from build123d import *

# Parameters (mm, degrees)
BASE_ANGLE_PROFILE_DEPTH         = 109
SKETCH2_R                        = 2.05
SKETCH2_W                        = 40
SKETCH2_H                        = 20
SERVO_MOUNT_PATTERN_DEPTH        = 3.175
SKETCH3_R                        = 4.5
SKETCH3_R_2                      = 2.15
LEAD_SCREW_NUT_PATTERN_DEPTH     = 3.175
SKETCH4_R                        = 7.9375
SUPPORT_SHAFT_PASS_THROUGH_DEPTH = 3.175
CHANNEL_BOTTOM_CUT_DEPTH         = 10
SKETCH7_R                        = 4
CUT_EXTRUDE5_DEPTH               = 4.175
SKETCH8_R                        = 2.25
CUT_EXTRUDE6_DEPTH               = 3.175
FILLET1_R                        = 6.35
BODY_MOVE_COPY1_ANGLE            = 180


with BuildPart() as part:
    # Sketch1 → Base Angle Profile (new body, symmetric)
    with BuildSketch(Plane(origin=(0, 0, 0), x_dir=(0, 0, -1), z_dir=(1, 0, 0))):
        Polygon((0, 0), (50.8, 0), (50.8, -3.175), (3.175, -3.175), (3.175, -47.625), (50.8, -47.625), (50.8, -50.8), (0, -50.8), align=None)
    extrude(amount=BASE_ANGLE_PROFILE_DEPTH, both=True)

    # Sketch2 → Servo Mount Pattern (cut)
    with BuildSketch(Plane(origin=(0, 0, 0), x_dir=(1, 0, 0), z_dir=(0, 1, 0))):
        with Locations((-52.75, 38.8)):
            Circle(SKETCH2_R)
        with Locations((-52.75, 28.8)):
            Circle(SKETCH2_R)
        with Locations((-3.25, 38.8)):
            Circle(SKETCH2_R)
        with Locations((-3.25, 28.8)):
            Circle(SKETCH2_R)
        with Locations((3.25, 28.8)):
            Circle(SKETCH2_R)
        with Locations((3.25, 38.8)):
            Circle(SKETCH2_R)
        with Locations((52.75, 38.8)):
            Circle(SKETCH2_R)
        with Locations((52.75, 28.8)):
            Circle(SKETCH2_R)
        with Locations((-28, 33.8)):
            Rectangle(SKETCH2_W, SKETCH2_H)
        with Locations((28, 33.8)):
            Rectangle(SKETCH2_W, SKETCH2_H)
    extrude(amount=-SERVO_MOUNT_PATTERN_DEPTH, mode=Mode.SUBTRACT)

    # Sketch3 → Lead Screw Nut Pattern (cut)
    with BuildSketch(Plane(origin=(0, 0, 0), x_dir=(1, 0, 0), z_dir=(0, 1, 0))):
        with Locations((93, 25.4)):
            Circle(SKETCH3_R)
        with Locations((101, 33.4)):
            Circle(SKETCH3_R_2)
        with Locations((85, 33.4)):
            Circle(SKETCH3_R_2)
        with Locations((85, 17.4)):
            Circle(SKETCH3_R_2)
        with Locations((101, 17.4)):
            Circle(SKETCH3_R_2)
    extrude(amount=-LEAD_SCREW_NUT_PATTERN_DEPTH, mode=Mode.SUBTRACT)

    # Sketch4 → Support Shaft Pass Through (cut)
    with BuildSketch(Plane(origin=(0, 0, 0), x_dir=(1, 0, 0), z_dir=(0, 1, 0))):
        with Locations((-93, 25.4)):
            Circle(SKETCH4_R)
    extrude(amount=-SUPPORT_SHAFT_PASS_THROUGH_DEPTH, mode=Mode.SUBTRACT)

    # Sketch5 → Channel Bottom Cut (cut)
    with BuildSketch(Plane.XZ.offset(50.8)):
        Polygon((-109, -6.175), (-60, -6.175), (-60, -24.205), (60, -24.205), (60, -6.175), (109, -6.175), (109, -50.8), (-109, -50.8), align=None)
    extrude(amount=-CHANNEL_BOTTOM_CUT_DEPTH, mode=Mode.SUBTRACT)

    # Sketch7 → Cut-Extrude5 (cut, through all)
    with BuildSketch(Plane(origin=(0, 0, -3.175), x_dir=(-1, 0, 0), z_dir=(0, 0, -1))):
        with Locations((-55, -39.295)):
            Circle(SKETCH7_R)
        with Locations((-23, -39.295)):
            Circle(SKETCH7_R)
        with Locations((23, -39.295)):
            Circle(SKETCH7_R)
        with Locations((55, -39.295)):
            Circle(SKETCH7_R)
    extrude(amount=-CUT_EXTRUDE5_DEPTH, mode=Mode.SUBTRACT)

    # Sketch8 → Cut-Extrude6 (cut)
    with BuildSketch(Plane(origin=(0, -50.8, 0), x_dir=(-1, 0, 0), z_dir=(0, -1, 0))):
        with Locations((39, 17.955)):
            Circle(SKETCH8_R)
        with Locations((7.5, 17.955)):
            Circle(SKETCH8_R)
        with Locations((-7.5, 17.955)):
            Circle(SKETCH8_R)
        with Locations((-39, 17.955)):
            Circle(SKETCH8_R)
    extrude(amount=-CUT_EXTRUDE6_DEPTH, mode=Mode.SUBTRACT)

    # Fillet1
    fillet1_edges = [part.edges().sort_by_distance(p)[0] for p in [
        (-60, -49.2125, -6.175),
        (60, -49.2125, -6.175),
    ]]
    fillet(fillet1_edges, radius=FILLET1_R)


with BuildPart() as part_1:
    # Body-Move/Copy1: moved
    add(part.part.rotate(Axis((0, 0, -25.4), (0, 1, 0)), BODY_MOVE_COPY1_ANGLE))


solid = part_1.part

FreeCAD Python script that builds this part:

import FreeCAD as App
import Part
import Sketcher
Q = App.Units.Quantity


def edges_at(feature, points):
    """Names of the edges that pass closest to the given points."""
    edges = feature.Shape.Edges
    near = lambda p: min(range(len(edges)), key=lambda i: edges[i].distToShape(Part.Vertex(*p))[0])
    return sorted({f"Edge{near(p) + 1}" for p in points})

doc = App.newDocument("Part")
body = doc.addObject("PartDesign::Body", "Body")

sketch1 = body.newObject("Sketcher::SketchObject", "Sketch")
sketch1.AttachmentSupport = (doc.getObject("YZ_Plane"), [""])
sketch1.MapMode = "FlatFace"
sketch1.addGeometry(Part.LineSegment(App.Vector(0, -50.8, 0), App.Vector(0, 0, 0)), False)
sketch1.addGeometry(Part.LineSegment(App.Vector(0, 0, 0), App.Vector(-50.8, 0, 0)), False)
sketch1.addGeometry(Part.LineSegment(App.Vector(-50.8, 0, 0), App.Vector(-50.8, -50.8, 0)), False)
sketch1.addGeometry(Part.LineSegment(App.Vector(-50.8, -50.8, 0), App.Vector(-47.6, -50.8, 0)), False)
sketch1.addGeometry(Part.LineSegment(App.Vector(-47.6, -50.8, 0), App.Vector(-47.6, -3.2, 0)), False)
sketch1.addGeometry(Part.LineSegment(App.Vector(-47.6, -3.2, 0), App.Vector(-3.2, -3.2, 0)), False)
sketch1.addGeometry(Part.LineSegment(App.Vector(-3.2, -3.2, 0), App.Vector(-3.2, -50.8, 0)), False)
sketch1.addGeometry(Part.LineSegment(App.Vector(-3.2, -50.8, 0), App.Vector(0, -50.8, 0)), False)
sketch1.addConstraint(Sketcher.Constraint("Coincident", 0, 2, 1, 1))
sketch1.addConstraint(Sketcher.Constraint("Coincident", 1, 2, 2, 1))
sketch1.addConstraint(Sketcher.Constraint("Coincident", 2, 2, 3, 1))
sketch1.addConstraint(Sketcher.Constraint("Coincident", 3, 2, 4, 1))
sketch1.addConstraint(Sketcher.Constraint("Coincident", 4, 2, 5, 1))
sketch1.addConstraint(Sketcher.Constraint("Coincident", 5, 2, 6, 1))
sketch1.addConstraint(Sketcher.Constraint("Coincident", 6, 2, 7, 1))
sketch1.addConstraint(Sketcher.Constraint("Coincident", 7, 2, 0, 1))
sketch1.addConstraint(Sketcher.Constraint("Vertical", 0))
sketch1.addConstraint(Sketcher.Constraint("Horizontal", 1))
sketch1.addConstraint(Sketcher.Constraint("Vertical", 2))
sketch1.addConstraint(Sketcher.Constraint("Horizontal", 3))
sketch1.addConstraint(Sketcher.Constraint("Vertical", 4))
sketch1.addConstraint(Sketcher.Constraint("Horizontal", 5))
sketch1.addConstraint(Sketcher.Constraint("Vertical", 6))
sketch1.addConstraint(Sketcher.Constraint("Horizontal", 7))
sketch1.addConstraint(Sketcher.Constraint("Coincident", 0, 2, -1, 1))
sketch1.addConstraint(Sketcher.Constraint("Horizontal", 3, 2, 6, 2))
sketch1.addConstraint(Sketcher.Constraint("Equal", 3, 7))
sketch1.addConstraint(Sketcher.Constraint("Equal", 1, 0))
sketch1.addConstraint(Sketcher.Constraint("DistanceX", 1, 2, 1, 1, Q("50.8 mm")))
sketch1.addConstraint(Sketcher.Constraint("DistanceX", 5, 1, 5, 2, Q("44.45 mm")))
sketch1.addConstraint(Sketcher.Constraint("DistanceY", 4, 1, 4, 2, Q("47.625 mm")))
pad1 = body.newObject("PartDesign::Pad", "Pad")
pad1.Profile = sketch1
pad1.Length = 218
pad1.Midplane = True

sketch2 = body.newObject("Sketcher::SketchObject", "Sketch001")
sketch2.AttachmentSupport = (doc.getObject("XZ_Plane"), [""])
sketch2.MapMode = "FlatFace"
sketch2.addGeometry(Part.Circle(App.Vector(-52.8, -38.8, 0), App.Vector(0, 0, 1), 2), False)
sketch2.addGeometry(Part.Circle(App.Vector(-52.8, -28.8, 0), App.Vector(0, 0, 1), 2), False)
sketch2.addGeometry(Part.Circle(App.Vector(-3.2, -38.8, 0), App.Vector(0, 0, 1), 2), False)
sketch2.addGeometry(Part.Circle(App.Vector(-3.2, -28.8, 0), App.Vector(0, 0, 1), 2), False)
sketch2.addGeometry(Part.Circle(App.Vector(3.2, -28.8, 0), App.Vector(0, 0, 1), 2), False)
sketch2.addGeometry(Part.Circle(App.Vector(3.2, -38.8, 0), App.Vector(0, 0, 1), 2), False)
sketch2.addGeometry(Part.Circle(App.Vector(52.8, -38.8, 0), App.Vector(0, 0, 1), 2), False)
sketch2.addGeometry(Part.Circle(App.Vector(52.8, -28.8, 0), App.Vector(0, 0, 1), 2), False)
sketch2.addGeometry(Part.LineSegment(App.Vector(-48, -43.8, 0), App.Vector(-48, -23.8, 0)), False)
sketch2.addGeometry(Part.LineSegment(App.Vector(-48, -23.8, 0), App.Vector(-8, -23.8, 0)), False)
sketch2.addGeometry(Part.LineSegment(App.Vector(-8, -23.8, 0), App.Vector(-8, -43.8, 0)), False)
sketch2.addGeometry(Part.LineSegment(App.Vector(-8, -43.8, 0), App.Vector(-48, -43.8, 0)), False)
sketch2.addGeometry(Part.LineSegment(App.Vector(8, -43.8, 0), App.Vector(8, -23.8, 0)), False)
sketch2.addGeometry(Part.LineSegment(App.Vector(8, -23.8, 0), App.Vector(48, -23.8, 0)), False)
sketch2.addGeometry(Part.LineSegment(App.Vector(48, -23.8, 0), App.Vector(48, -43.8, 0)), False)
sketch2.addGeometry(Part.LineSegment(App.Vector(48, -43.8, 0), App.Vector(8, -43.8, 0)), False)
sketch2.addConstraint(Sketcher.Constraint("Coincident", 8, 2, 9, 1))
sketch2.addConstraint(Sketcher.Constraint("Coincident", 9, 2, 10, 1))
sketch2.addConstraint(Sketcher.Constraint("Coincident", 10, 2, 11, 1))
sketch2.addConstraint(Sketcher.Constraint("Coincident", 11, 2, 8, 1))
sketch2.addConstraint(Sketcher.Constraint("Coincident", 12, 2, 13, 1))
sketch2.addConstraint(Sketcher.Constraint("Coincident", 13, 2, 14, 1))
sketch2.addConstraint(Sketcher.Constraint("Coincident", 14, 2, 15, 1))
sketch2.addConstraint(Sketcher.Constraint("Coincident", 15, 2, 12, 1))
sketch2.addConstraint(Sketcher.Constraint("Vertical", 8))
sketch2.addConstraint(Sketcher.Constraint("Horizontal", 9))
sketch2.addConstraint(Sketcher.Constraint("Vertical", 10))
sketch2.addConstraint(Sketcher.Constraint("Horizontal", 11))
sketch2.addConstraint(Sketcher.Constraint("Vertical", 12))
sketch2.addConstraint(Sketcher.Constraint("Horizontal", 13))
sketch2.addConstraint(Sketcher.Constraint("Vertical", 14))
sketch2.addConstraint(Sketcher.Constraint("Horizontal", 15))
sketch2.addConstraint(Sketcher.Constraint("Equal", 0, 1))
sketch2.addConstraint(Sketcher.Constraint("Equal", 1, 2))
sketch2.addConstraint(Sketcher.Constraint("Equal", 2, 3))
sketch2.addConstraint(Sketcher.Constraint("Equal", 3, 4))
sketch2.addConstraint(Sketcher.Constraint("Equal", 4, 5))
sketch2.addConstraint(Sketcher.Constraint("Equal", 5, 6))
sketch2.addConstraint(Sketcher.Constraint("Equal", 6, 7))
sketch2.addConstraint(Sketcher.Constraint("Symmetric", 3, 3, 4, 3, -2))
sketch2.addConstraint(Sketcher.Constraint("Symmetric", 2, 3, 5, 3, -2))
sketch2.addConstraint(Sketcher.Constraint("Symmetric", 0, 3, 6, 3, -2))
sketch2.addConstraint(Sketcher.Constraint("Symmetric", 1, 3, 7, 3, -2))
sketch2.addConstraint(Sketcher.Constraint("Symmetric", 9, 2, 12, 2, -2))
sketch2.addConstraint(Sketcher.Constraint("Symmetric", 11, 2, 14, 2, -2))
sketch2.addConstraint(Sketcher.Constraint("Horizontal", 0, 3, 2, 3))
sketch2.addConstraint(Sketcher.Constraint("Horizontal", 1, 3, 3, 3))
sketch2.addConstraint(Sketcher.Constraint("Vertical", 0, 3, 1, 3))
sketch2.addConstraint(Sketcher.Constraint("Vertical", 2, 3, 3, 3))
sketch2.addConstraint(Sketcher.Constraint("Diameter", 0, Q("4.1 mm")))
sketch2.addConstraint(Sketcher.Constraint("DistanceX", 9, 1, 9, 2, Q("40 mm")))
sketch2.addConstraint(Sketcher.Constraint("DistanceY", 8, 1, 8, 2, Q("20 mm")))
sketch2.addConstraint(Sketcher.Constraint("DistanceX", 8, 2, -1, 1, Q("48 mm")))
sketch2.addConstraint(Sketcher.Constraint("DistanceY", 0, 3, 1, 3, Q("10 mm")))
sketch2.addConstraint(Sketcher.Constraint("DistanceX", 1, 3, 4, 3, Q("56 mm")))
sketch2.addConstraint(Sketcher.Constraint("DistanceY", 1, 3, 8, 2, Q("5 mm")))
sketch2.addConstraint(Sketcher.Constraint("DistanceY", 0, 3, -1, 1, Q("38.8 mm")))
sketch2.addConstraint(Sketcher.Constraint("DistanceX", 0, 3, 2, 3, Q("49.5 mm")))
pocket1 = body.newObject("PartDesign::Pocket", "Pocket")
pocket1.Profile = sketch2
pocket1.Length = 3.175
pocket1.Reversed = True

sketch3 = body.newObject("Sketcher::SketchObject", "Sketch002")
sketch3.AttachmentSupport = (doc.getObject("XZ_Plane"), [""])
sketch3.MapMode = "FlatFace"
sketch3.addGeometry(Part.Circle(App.Vector(93, -25.4, 0), App.Vector(0, 0, 1), 4.5), False)
sketch3.addGeometry(Part.Circle(App.Vector(101, -33.4, 0), App.Vector(0, 0, 1), 2.1), False)
sketch3.addGeometry(Part.Circle(App.Vector(85, -33.4, 0), App.Vector(0, 0, 1), 2.1), False)
sketch3.addGeometry(Part.Circle(App.Vector(85, -17.4, 0), App.Vector(0, 0, 1), 2.1), False)
sketch3.addGeometry(Part.Circle(App.Vector(101, -17.4, 0), App.Vector(0, 0, 1), 2.1), False)
sketch3.addConstraint(Sketcher.Constraint("Equal", 1, 2))
sketch3.addConstraint(Sketcher.Constraint("Equal", 2, 3))
sketch3.addConstraint(Sketcher.Constraint("Equal", 3, 4))
sketch3.addConstraint(Sketcher.Constraint("Horizontal", 1, 3, 2, 3))
sketch3.addConstraint(Sketcher.Constraint("Horizontal", 3, 3, 4, 3))
sketch3.addConstraint(Sketcher.Constraint("Vertical", 2, 3, 3, 3))
sketch3.addConstraint(Sketcher.Constraint("Vertical", 1, 3, 4, 3))
sketch3.addConstraint(Sketcher.Constraint("Diameter", 0, Q("9 mm")))
sketch3.addConstraint(Sketcher.Constraint("Diameter", 1, Q("4.3 mm")))
sketch3.addConstraint(Sketcher.Constraint("DistanceX", -1, 1, 0, 3, Q("93 mm")))
sketch3.addConstraint(Sketcher.Constraint("DistanceX", -1, 1, 1, 3, Q("101 mm")))
sketch3.addConstraint(Sketcher.Constraint("DistanceX", -1, 1, 2, 3, Q("85 mm")))
sketch3.addConstraint(Sketcher.Constraint("DistanceY", 1, 3, 0, 3, Q("8 mm")))
sketch3.addConstraint(Sketcher.Constraint("DistanceY", 0, 3, 3, 3, Q("8 mm")))
sketch3.addConstraint(Sketcher.Constraint("DistanceY", 0, 3, -1, 1, Q("25.4 mm")))
pocket2 = body.newObject("PartDesign::Pocket", "Pocket001")
pocket2.Profile = sketch3
pocket2.Length = 3.175
pocket2.Reversed = True

sketch4 = body.newObject("Sketcher::SketchObject", "Sketch003")
sketch4.AttachmentSupport = (doc.getObject("XZ_Plane"), [""])
sketch4.MapMode = "FlatFace"
sketch4.addGeometry(Part.Circle(App.Vector(-93, -25, 0), App.Vector(0, 0, 1), 8), False)
sketch4.addConstraint(Sketcher.Constraint("Diameter", 0, Q("15.875 mm")))
sketch4.addConstraint(Sketcher.Constraint("DistanceX", 0, 3, -1, 1, Q("93 mm")))
sketch4.addConstraint(Sketcher.Constraint("DistanceY", 0, 3, -1, 1, Q("25.4 mm")))
pocket3 = body.newObject("PartDesign::Pocket", "Pocket002")
pocket3.Profile = sketch4
pocket3.Length = 3.175
pocket3.Reversed = True

sketch5 = body.newObject("Sketcher::SketchObject", "Sketch004")
sketch5.AttachmentSupport = (doc.getObject("XZ_Plane"), [""])
sketch5.MapMode = "FlatFace"
sketch5.AttachmentOffset = App.Placement(App.Vector(0, 0, 50.8), App.Rotation())
sketch5.addGeometry(Part.LineSegment(App.Vector(-60, -6, 0), App.Vector(-109, -6, 0)), False)
sketch5.addGeometry(Part.LineSegment(App.Vector(-109, -6, 0), App.Vector(-109, -51, 0)), False)
sketch5.addGeometry(Part.LineSegment(App.Vector(-109, -51, 0), App.Vector(109, -51, 0)), False)
sketch5.addGeometry(Part.LineSegment(App.Vector(109, -51, 0), App.Vector(109, -6, 0)), False)
sketch5.addGeometry(Part.LineSegment(App.Vector(109, -6, 0), App.Vector(60, -6, 0)), False)
sketch5.addGeometry(Part.LineSegment(App.Vector(60, -6, 0), App.Vector(60, -24, 0)), False)
sketch5.addGeometry(Part.LineSegment(App.Vector(60, -24, 0), App.Vector(-60, -24, 0)), False)
sketch5.addGeometry(Part.LineSegment(App.Vector(-60, -24, 0), App.Vector(-60, -6, 0)), False)
sketch5.addConstraint(Sketcher.Constraint("Coincident", 0, 2, 1, 1))
sketch5.addConstraint(Sketcher.Constraint("Coincident", 1, 2, 2, 1))
sketch5.addConstraint(Sketcher.Constraint("Coincident", 2, 2, 3, 1))
sketch5.addConstraint(Sketcher.Constraint("Coincident", 3, 2, 4, 1))
sketch5.addConstraint(Sketcher.Constraint("Coincident", 4, 2, 5, 1))
sketch5.addConstraint(Sketcher.Constraint("Coincident", 5, 2, 6, 1))
sketch5.addConstraint(Sketcher.Constraint("Coincident", 6, 2, 7, 1))
sketch5.addConstraint(Sketcher.Constraint("Coincident", 7, 2, 0, 1))
sketch5.addConstraint(Sketcher.Constraint("Horizontal", 0))
sketch5.addConstraint(Sketcher.Constraint("Vertical", 1))
sketch5.addConstraint(Sketcher.Constraint("Horizontal", 2))
sketch5.addConstraint(Sketcher.Constraint("Vertical", 3))
sketch5.addConstraint(Sketcher.Constraint("Horizontal", 4))
sketch5.addConstraint(Sketcher.Constraint("Vertical", 5))
sketch5.addConstraint(Sketcher.Constraint("Horizontal", 6))
sketch5.addConstraint(Sketcher.Constraint("Vertical", 7))
sketch5.addConstraint(Sketcher.Constraint("Symmetric", 0, 2, 3, 2, -2))
sketch5.addConstraint(Sketcher.Constraint("Equal", 0, 4))
sketch5.addConstraint(Sketcher.Constraint("DistanceX", 0, 2, 0, 1, Q("49 mm")))
sketch5.addConstraint(Sketcher.Constraint("DistanceX", 2, 1, 2, 2, Q("218 mm")))
sketch5.addConstraint(Sketcher.Constraint("DistanceY", 5, 2, 5, 1, Q("18.03 mm")))
sketch5.addConstraint(Sketcher.Constraint("DistanceY", 1, 2, -1, 1, Q("50.8 mm")))
sketch5.addConstraint(Sketcher.Constraint("DistanceY", 1, 2, 1, 1, Q("44.625 mm")))
pocket4 = body.newObject("PartDesign::Pocket", "Pocket003")
pocket4.Profile = sketch5
pocket4.Length = 10

sketch6 = body.newObject("Sketcher::SketchObject", "Sketch005")
sketch6.AttachmentSupport = (doc.getObject("XY_Plane"), [""])
sketch6.MapMode = "FlatFace"
sketch6.AttachmentOffset = App.Placement(App.Vector(0, 0, -3.175), App.Rotation())
sketch6.addGeometry(Part.Circle(App.Vector(55, -39.3, 0), App.Vector(0, 0, 1), 4), False)
sketch6.addGeometry(Part.Circle(App.Vector(23, -39.3, 0), App.Vector(0, 0, 1), 4), False)
sketch6.addGeometry(Part.Circle(App.Vector(-23, -39.3, 0), App.Vector(0, 0, 1), 4), False)
sketch6.addGeometry(Part.Circle(App.Vector(-55, -39.3, 0), App.Vector(0, 0, 1), 4), False)
sketch6.addConstraint(Sketcher.Constraint("Equal", 0, 1))
sketch6.addConstraint(Sketcher.Constraint("Equal", 1, 2))
sketch6.addConstraint(Sketcher.Constraint("Equal", 2, 3))
sketch6.addConstraint(Sketcher.Constraint("Symmetric", 1, 3, 2, 3, -2))
sketch6.addConstraint(Sketcher.Constraint("Symmetric", 0, 3, 3, 3, -2))
sketch6.addConstraint(Sketcher.Constraint("Horizontal", 0, 3, 1, 3))
sketch6.addConstraint(Sketcher.Constraint("Diameter", 0, Q("8 mm")))
sketch6.addConstraint(Sketcher.Constraint("DistanceX", -1, 1, 0, 3, Q("55 mm")))
sketch6.addConstraint(Sketcher.Constraint("DistanceX", -1, 1, 1, 3, Q("23 mm")))
sketch6.addConstraint(Sketcher.Constraint("DistanceY", 0, 3, -1, 1, Q("39.295 mm")))
pocket5 = body.newObject("PartDesign::Pocket", "Pocket004")
pocket5.Profile = sketch6
pocket5.Type = "ThroughAll"
pocket5.Reversed = True

sketch7 = body.newObject("Sketcher::SketchObject", "Sketch006")
sketch7.AttachmentSupport = (doc.getObject("XZ_Plane"), [""])
sketch7.MapMode = "FlatFace"
sketch7.AttachmentOffset = App.Placement(App.Vector(0, 0, 50.8), App.Rotation())
sketch7.addGeometry(Part.Circle(App.Vector(-39, -18, 0), App.Vector(0, 0, 1), 2.2), False)
sketch7.addGeometry(Part.Circle(App.Vector(-7.5, -18, 0), App.Vector(0, 0, 1), 2.2), False)
sketch7.addGeometry(Part.Circle(App.Vector(7.5, -18, 0), App.Vector(0, 0, 1), 2.2), False)
sketch7.addGeometry(Part.Circle(App.Vector(39, -18, 0), App.Vector(0, 0, 1), 2.2), False)
sketch7.addConstraint(Sketcher.Constraint("Equal", 0, 1))
sketch7.addConstraint(Sketcher.Constraint("Equal", 1, 2))
sketch7.addConstraint(Sketcher.Constraint("Equal", 2, 3))
sketch7.addConstraint(Sketcher.Constraint("Symmetric", 1, 3, 2, 3, -2))
sketch7.addConstraint(Sketcher.Constraint("Symmetric", 0, 3, 3, 3, -2))
sketch7.addConstraint(Sketcher.Constraint("Horizontal", 0, 3, 1, 3))
sketch7.addConstraint(Sketcher.Constraint("Diameter", 0, Q("4.5 mm")))
sketch7.addConstraint(Sketcher.Constraint("DistanceX", 0, 3, -1, 1, Q("39 mm")))
sketch7.addConstraint(Sketcher.Constraint("DistanceX", 1, 3, 2, 3, Q("15 mm")))
sketch7.addConstraint(Sketcher.Constraint("DistanceY", 0, 3, -1, 1, Q("17.955 mm")))
pocket6 = body.newObject("PartDesign::Pocket", "Pocket005")
pocket6.Profile = sketch7
pocket6.Length = 3.175
doc.recompute()

fillet = body.newObject("PartDesign::Fillet", "Fillet")
fillet.Base = (pocket6, edges_at(pocket6, [(-60, -49.212, -6.175), (60, -49.212, -6.175)]))
fillet.Radius = 6.35
body2 = doc.addObject("PartDesign::Body", "Body001")
doc.recompute()

body.Placement = App.Placement(App.Vector(0, 0, -50.8), App.Rotation(App.Vector(0, 1, 0), 180))
boolean = body2.newObject("PartDesign::Boolean", "Boolean")
boolean.Type = "Fuse"
boolean.addObjects([body])

doc.recompute()
